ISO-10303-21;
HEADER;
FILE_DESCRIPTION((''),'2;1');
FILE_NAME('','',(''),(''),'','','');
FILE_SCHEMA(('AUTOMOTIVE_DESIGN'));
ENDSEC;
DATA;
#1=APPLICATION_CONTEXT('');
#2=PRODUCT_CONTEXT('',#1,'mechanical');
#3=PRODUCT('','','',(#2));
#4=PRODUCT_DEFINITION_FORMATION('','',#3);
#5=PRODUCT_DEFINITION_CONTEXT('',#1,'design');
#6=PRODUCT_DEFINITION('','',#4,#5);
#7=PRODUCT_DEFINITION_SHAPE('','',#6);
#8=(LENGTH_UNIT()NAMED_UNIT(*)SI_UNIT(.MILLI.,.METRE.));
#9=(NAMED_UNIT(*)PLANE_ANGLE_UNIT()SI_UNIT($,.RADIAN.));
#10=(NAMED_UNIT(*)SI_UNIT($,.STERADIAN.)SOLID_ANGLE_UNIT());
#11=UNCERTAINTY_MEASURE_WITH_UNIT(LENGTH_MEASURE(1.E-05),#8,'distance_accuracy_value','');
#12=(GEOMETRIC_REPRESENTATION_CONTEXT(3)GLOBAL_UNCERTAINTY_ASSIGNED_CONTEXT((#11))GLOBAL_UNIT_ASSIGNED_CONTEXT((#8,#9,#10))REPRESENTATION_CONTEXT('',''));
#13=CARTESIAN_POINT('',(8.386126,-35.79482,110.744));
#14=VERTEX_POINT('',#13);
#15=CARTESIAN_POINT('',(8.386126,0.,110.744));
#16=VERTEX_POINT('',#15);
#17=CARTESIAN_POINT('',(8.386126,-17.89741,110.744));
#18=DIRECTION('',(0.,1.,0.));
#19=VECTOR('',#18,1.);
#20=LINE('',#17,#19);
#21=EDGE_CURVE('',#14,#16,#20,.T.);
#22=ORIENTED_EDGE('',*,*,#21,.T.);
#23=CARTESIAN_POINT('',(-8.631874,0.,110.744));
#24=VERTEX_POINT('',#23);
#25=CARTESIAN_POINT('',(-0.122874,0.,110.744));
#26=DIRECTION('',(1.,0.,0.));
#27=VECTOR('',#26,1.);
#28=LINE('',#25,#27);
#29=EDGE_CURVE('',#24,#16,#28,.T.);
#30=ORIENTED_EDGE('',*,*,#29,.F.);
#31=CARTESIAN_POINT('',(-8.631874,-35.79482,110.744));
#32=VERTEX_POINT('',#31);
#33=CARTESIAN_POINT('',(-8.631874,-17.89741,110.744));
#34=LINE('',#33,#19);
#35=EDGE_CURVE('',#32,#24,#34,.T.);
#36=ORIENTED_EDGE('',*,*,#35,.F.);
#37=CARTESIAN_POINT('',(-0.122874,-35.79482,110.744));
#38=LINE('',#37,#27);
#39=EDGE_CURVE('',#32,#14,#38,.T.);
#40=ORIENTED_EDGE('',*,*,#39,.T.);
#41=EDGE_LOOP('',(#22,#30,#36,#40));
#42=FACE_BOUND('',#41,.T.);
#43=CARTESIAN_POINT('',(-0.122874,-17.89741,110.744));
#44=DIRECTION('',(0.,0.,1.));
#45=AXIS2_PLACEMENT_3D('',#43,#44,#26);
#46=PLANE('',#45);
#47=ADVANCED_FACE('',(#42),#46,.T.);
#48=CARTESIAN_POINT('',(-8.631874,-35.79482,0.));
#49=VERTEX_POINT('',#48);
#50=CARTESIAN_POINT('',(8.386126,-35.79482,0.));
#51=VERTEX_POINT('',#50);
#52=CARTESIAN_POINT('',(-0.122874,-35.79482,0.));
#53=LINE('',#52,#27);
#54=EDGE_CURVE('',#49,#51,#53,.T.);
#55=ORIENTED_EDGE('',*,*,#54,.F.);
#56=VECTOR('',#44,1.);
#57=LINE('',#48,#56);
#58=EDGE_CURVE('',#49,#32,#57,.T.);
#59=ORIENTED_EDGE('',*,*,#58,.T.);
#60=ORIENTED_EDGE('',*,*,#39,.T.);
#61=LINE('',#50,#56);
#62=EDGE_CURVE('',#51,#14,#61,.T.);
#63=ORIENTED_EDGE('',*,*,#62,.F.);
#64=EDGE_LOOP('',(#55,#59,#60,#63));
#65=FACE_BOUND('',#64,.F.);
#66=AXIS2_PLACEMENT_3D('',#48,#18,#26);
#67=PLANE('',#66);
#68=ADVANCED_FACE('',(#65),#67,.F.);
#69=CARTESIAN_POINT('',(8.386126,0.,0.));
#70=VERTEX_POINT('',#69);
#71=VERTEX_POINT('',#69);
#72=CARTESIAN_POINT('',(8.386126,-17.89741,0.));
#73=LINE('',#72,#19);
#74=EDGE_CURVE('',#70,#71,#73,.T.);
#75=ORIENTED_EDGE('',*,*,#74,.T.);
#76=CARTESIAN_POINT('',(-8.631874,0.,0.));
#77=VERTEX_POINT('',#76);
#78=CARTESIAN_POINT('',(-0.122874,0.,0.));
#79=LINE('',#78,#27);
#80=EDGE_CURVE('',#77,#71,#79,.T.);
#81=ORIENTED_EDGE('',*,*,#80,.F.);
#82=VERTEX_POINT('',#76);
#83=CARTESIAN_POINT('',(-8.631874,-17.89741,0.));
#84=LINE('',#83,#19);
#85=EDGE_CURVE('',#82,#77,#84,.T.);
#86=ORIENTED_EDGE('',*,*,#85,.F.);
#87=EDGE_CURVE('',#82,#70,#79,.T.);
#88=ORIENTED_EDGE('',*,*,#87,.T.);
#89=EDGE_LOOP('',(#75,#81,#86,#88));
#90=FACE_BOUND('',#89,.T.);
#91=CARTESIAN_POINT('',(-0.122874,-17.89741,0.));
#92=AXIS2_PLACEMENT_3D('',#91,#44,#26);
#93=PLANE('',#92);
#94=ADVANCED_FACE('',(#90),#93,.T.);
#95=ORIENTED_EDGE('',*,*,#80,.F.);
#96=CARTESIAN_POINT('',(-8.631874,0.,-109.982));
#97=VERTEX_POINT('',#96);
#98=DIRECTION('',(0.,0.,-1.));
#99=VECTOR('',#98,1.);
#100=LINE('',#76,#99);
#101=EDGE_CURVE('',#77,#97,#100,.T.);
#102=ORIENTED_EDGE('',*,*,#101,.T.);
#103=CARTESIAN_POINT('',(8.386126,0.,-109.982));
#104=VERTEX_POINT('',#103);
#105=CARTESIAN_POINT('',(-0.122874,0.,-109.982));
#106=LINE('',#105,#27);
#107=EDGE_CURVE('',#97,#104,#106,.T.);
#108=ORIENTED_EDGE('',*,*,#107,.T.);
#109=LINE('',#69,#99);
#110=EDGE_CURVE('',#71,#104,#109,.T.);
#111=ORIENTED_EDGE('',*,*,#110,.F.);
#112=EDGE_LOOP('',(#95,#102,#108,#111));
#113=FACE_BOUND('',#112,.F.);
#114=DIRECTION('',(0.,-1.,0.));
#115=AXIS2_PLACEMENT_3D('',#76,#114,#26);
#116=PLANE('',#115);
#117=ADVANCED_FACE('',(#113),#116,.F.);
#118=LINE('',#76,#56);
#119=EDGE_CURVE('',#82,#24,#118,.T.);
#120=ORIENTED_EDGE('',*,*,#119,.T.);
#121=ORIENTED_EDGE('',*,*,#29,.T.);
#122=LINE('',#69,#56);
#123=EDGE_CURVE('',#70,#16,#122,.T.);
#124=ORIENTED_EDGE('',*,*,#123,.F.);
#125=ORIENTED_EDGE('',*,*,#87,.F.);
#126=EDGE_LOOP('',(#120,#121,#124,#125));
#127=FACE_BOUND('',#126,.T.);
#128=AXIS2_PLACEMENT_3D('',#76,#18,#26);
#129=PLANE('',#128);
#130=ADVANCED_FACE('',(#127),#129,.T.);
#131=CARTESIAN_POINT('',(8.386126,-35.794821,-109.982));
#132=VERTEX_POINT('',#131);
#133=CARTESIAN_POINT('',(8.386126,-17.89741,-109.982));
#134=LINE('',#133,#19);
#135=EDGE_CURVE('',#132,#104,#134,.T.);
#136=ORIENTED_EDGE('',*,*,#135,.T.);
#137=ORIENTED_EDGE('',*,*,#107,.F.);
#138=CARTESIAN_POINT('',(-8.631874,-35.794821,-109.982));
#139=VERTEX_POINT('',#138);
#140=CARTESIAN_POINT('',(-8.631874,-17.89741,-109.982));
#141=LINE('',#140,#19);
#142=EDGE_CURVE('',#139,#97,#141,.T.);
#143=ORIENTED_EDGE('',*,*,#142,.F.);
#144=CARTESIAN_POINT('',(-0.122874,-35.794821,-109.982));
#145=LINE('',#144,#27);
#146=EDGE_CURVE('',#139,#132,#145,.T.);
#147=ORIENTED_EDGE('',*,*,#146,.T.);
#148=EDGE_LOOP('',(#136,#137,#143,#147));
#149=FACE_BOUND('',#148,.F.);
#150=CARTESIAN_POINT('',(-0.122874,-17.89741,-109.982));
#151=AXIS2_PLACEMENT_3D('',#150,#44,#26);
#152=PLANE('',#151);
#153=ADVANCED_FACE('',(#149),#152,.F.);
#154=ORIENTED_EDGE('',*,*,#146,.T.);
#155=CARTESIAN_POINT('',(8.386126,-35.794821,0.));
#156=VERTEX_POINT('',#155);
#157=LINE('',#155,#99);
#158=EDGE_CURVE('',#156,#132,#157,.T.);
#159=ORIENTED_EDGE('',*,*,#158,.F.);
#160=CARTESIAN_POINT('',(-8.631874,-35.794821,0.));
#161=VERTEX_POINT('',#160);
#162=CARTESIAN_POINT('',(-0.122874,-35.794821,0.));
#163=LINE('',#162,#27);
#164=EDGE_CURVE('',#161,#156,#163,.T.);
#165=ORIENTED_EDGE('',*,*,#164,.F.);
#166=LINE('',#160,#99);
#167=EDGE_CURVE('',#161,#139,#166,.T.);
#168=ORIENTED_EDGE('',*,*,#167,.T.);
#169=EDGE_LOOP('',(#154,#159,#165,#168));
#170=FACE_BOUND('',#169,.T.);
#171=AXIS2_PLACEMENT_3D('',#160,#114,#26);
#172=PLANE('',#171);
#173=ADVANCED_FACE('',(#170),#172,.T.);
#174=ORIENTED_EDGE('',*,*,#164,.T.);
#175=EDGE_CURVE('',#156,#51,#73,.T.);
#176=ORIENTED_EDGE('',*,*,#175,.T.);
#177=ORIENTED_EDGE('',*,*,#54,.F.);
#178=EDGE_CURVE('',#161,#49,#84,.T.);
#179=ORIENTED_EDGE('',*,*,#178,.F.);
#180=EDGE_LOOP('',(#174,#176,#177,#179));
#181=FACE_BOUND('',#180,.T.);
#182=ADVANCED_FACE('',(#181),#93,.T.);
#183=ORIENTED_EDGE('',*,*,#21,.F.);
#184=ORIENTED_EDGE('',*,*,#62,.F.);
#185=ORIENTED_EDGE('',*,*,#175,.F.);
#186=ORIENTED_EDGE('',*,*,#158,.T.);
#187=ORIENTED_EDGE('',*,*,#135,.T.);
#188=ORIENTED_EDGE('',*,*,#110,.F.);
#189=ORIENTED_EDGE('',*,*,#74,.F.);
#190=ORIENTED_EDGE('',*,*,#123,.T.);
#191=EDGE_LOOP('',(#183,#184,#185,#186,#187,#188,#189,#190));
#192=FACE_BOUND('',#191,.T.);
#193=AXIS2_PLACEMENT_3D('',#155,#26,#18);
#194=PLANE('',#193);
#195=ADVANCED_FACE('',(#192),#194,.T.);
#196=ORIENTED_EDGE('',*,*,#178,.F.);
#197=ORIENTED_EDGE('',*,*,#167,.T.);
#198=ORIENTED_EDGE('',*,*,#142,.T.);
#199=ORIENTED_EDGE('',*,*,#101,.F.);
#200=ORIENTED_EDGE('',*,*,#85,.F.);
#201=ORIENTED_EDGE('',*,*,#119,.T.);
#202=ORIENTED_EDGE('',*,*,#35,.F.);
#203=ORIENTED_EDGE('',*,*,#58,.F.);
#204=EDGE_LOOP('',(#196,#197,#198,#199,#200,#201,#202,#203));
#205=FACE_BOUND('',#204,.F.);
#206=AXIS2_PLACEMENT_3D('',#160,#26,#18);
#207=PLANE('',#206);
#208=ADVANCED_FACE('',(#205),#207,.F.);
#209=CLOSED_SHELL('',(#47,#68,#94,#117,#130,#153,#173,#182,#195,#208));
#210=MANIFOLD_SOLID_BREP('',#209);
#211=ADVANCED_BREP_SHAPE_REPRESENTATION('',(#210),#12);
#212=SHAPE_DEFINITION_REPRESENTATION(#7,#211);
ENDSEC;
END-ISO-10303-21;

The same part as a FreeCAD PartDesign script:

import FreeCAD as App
import Part
import Sketcher
Q = App.Units.Quantity

doc = App.newDocument("Part")
body = doc.addObject("PartDesign::Body", "Body")

# Sketch on XY plane
sketch1 = doc.addObject("Sketcher::SketchObject", "Sketch")
body.addObject(sketch1)
sketch1.AttachmentSupport = (doc.XY_Plane, [""])
sketch1.MapMode = "FlatFace"
sketch1.addGeometry(Part.LineSegment(App.Vector(-8.631874, 0, 0), App.Vector(-8.631874, -35.794821, 0)), False)
sketch1.addGeometry(Part.LineSegment(App.Vector(-8.631874, -35.794821, 0), App.Vector(8.386126, -35.794821, 0)), False)
sketch1.addGeometry(Part.LineSegment(App.Vector(8.386126, -35.794821, 0), App.Vector(8.386126, 0, 0)), False)
sketch1.addGeometry(Part.LineSegment(App.Vector(8.386126, 0, 0), App.Vector(-8.631874, 0, 0)), False)
sketch1.addConstraint(Sketcher.Constraint("Coincident", 0, 2, 1, 1))
sketch1.addConstraint(Sketcher.Constraint("Coincident", 1, 2, 2, 1))
sketch1.addConstraint(Sketcher.Constraint("Coincident", 2, 2, 3, 1))
sketch1.addConstraint(Sketcher.Constraint("Coincident", 3, 2, 0, 1))
sketch1.addConstraint(Sketcher.Constraint("Vertical", 0))
sketch1.addConstraint(Sketcher.Constraint("Horizontal", 1))
sketch1.addConstraint(Sketcher.Constraint("Vertical", 2))
sketch1.addConstraint(Sketcher.Constraint("Horizontal", 3))
sketch1.addConstraint(Sketcher.Constraint("PointOnObject", 2, 2, -1))
sketch1.addConstraint(Sketcher.Constraint("DistanceX", 1, 1, 1, 2, Q("0.67 in")))
sketch1.addConstraint(Sketcher.Constraint("DistanceY", 0, 2, 0, 1, Q("35.794821 mm")))
sketch1.addConstraint(Sketcher.Constraint("DistanceX", 0, 2, -1, 1, Q("8.631874 mm")))
pad1 = doc.addObject("PartDesign::Pad", "Pad")
body.addObject(pad1)
pad1.Profile = sketch1
pad1.Length = Q("4.33 in")
pad1.Reversed = True

# Sketch on XY plane
sketch2 = doc.addObject("Sketcher::SketchObject", "Sketch001")
body.addObject(sketch2)
sketch2.AttachmentSupport = (doc.XY_Plane, [""])
sketch2.MapMode = "FlatFace"
sketch2.addGeometry(Part.LineSegment(App.Vector(-8.631874, 0, 0), App.Vector(-8.631874, -35.79482, 0)), False)
sketch2.addGeometry(Part.LineSegment(App.Vector(-8.631874, -35.79482, 0), App.Vector(8.386126, -35.79482, 0)), False)
sketch2.addGeometry(Part.LineSegment(App.Vector(8.386126, -35.79482, 0), App.Vector(8.386126, 0, 0)), False)
sketch2.addGeometry(Part.LineSegment(App.Vector(8.386126, 0, 0), App.Vector(-8.631874, 0, 0)), False)
sketch2.addConstraint(Sketcher.Constraint("Coincident", 0, 2, 1, 1))
sketch2.addConstraint(Sketcher.Constraint("Coincident", 1, 2, 2, 1))
sketch2.addConstraint(Sketcher.Constraint("Coincident", 2, 2, 3, 1))
sketch2.addConstraint(Sketcher.Constraint("Coincident", 3, 2, 0, 1))
sketch2.addConstraint(Sketcher.Constraint("Vertical", 0))
sketch2.addConstraint(Sketcher.Constraint("Horizontal", 1))
sketch2.addConstraint(Sketcher.Constraint("Vertical", 2))
sketch2.addConstraint(Sketcher.Constraint("Horizontal", 3))
sketch2.addConstraint(Sketcher.Constraint("PointOnObject", 2, 2, -1))
sketch2.addConstraint(Sketcher.Constraint("DistanceX", 1, 1, 1, 2, Q("0.67 in")))
sketch2.addConstraint(Sketcher.Constraint("DistanceY", 0, 2, 0, 1, Q("35.79482 mm")))
sketch2.addConstraint(Sketcher.Constraint("DistanceX", 0, 2, -1, 1, Q("8.631874 mm")))
pad2 = doc.addObject("PartDesign::Pad", "Pad001")
body.addObject(pad2)
pad2.Profile = sketch2
pad2.Length = Q("4.36 in")

doc.recompute()
